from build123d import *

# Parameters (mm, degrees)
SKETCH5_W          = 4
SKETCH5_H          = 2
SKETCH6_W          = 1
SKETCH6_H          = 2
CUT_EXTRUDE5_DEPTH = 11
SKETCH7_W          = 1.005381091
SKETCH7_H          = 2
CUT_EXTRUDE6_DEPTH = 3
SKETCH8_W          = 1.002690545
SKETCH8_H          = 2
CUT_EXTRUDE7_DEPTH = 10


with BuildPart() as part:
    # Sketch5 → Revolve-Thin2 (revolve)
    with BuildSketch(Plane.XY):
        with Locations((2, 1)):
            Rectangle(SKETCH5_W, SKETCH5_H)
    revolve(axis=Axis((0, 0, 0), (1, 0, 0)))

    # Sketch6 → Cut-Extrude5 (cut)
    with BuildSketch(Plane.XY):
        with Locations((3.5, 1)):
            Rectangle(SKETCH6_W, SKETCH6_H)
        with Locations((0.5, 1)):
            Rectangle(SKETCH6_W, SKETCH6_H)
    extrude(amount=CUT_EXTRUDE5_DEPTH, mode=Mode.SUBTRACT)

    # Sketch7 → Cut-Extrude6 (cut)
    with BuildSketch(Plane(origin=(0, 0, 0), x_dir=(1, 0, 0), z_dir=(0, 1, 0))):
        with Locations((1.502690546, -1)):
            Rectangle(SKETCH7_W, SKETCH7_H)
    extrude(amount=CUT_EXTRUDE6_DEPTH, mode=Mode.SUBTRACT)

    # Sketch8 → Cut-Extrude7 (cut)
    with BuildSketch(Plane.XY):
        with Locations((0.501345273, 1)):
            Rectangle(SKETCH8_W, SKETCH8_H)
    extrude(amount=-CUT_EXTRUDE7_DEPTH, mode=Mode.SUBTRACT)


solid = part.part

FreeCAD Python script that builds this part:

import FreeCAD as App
import Part
import Sketcher
from FreeCAD import Vector
Q = App.Units.Quantity


def add_polygon(sketch, points):
    """Adds a closed chain of lines whose ends are joined by coincident constraints."""
    first, n = sketch.GeometryCount, len(points)
    for a, b in zip(points, points[1:] + points[:1]):
        sketch.addGeometry(Part.LineSegment(App.Vector(*a, 0), App.Vector(*b, 0)), False)
    for i in range(n):
        sketch.addConstraint(Sketcher.Constraint("Coincident", first + i, 2, first + (i + 1) % n, 1))

doc = App.newDocument("Part")
body = doc.addObject("PartDesign::Body", "Body")

# Sketch on XY plane
sketch1 = body.newObject("Sketcher::SketchObject", "Sketch")
sketch1.AttachmentSupport = (doc.getObject("XY_Plane"), [""])
sketch1.MapMode = "FlatFace"
add_polygon(sketch1, [(0, 2), (0, 0), (4, 0), (4, 2)])  # lines 0-3
sketch1.addConstraint(Sketcher.Constraint("Vertical", 0))
sketch1.addConstraint(Sketcher.Constraint("Horizontal", 1))
sketch1.addConstraint(Sketcher.Constraint("Vertical", 2))
sketch1.addConstraint(Sketcher.Constraint("Horizontal", 3))
sketch1.addConstraint(Sketcher.Constraint("Coincident", 0, 2, -1, 1))
sketch1.addConstraint(Sketcher.Constraint("DistanceX", 1, 1, 1, 2, Q("4 mm")))
sketch1.addConstraint(Sketcher.Constraint("DistanceY", 0, 2, 0, 1, Q("2 mm")))
revolution = body.newObject("PartDesign::Revolution", "Revolution")
revolution.Profile = sketch1
revolution.ReferenceAxis = (sketch1, ["H_Axis"])
revolution.Angle = 360

# Sketch on XY plane
sketch2 = body.newObject("Sketcher::SketchObject", "Sketch001")
sketch2.AttachmentSupport = (doc.getObject("XY_Plane"), [""])
sketch2.MapMode = "FlatFace"
add_polygon(sketch2, [(3, 2), (3, 0), (4, 0), (4, 2)])  # lines 0-3
add_polygon(sketch2, [(0, 2), (0, 0), (1, 0), (1, 2)])  # lines 4-7
sketch2.addConstraint(Sketcher.Constraint("Vertical", 0))
sketch2.addConstraint(Sketcher.Constraint("Horizontal", 1))
sketch2.addConstraint(Sketcher.Constraint("Vertical", 2))
sketch2.addConstraint(Sketcher.Constraint("Horizontal", 3))
sketch2.addConstraint(Sketcher.Constraint("Vertical", 4))
sketch2.addConstraint(Sketcher.Constraint("Horizontal", 5))
sketch2.addConstraint(Sketcher.Constraint("Vertical", 6))
sketch2.addConstraint(Sketcher.Constraint("Horizontal", 7))
sketch2.addConstraint(Sketcher.Constraint("Coincident", 4, 2, -1, 1))
sketch2.addConstraint(Sketcher.Constraint("PointOnObject", 0, 2, -1))
sketch2.addConstraint(Sketcher.Constraint("Horizontal", 3, 2, 6, 2))
sketch2.addConstraint(Sketcher.Constraint("Equal", 3, 5))
sketch2.addConstraint(Sketcher.Constraint("DistanceX", 1, 1, 1, 2, Q("1 mm")))
sketch2.addConstraint(Sketcher.Constraint("DistanceY", 0, 2, 0, 1, Q("2 mm")))
sketch2.addConstraint(Sketcher.Constraint("DistanceX", -1, 1, 0, 2, Q("3 mm")))
pocket1 = body.newObject("PartDesign::Pocket", "Pocket")
pocket1.Profile = sketch2
pocket1.Length = 11
pocket1.Reversed = True

# Sketch on XZ plane
sketch3 = body.newObject("Sketcher::SketchObject", "Sketch002")
sketch3.AttachmentSupport = (doc.getObject("XZ_Plane"), [""])
sketch3.MapMode = "FlatFace"
add_polygon(sketch3, [(1, 0), (1, 2), (2, 2), (2, 0)])  # lines 0-3
sketch3.addConstraint(Sketcher.Constraint("Vertical", 0))
sketch3.addConstraint(Sketcher.Constraint("Horizontal", 1))
sketch3.addConstraint(Sketcher.Constraint("Vertical", 2))
sketch3.addConstraint(Sketcher.Constraint("Horizontal", 3))
sketch3.addConstraint(Sketcher.Constraint("PointOnObject", 2, 2, -1))
sketch3.addConstraint(Sketcher.Constraint("DistanceY", 0, 1, 0, 2, Q("2 mm")))
sketch3.addConstraint(Sketcher.Constraint("DistanceX", -1, 1, 0, 2, Q("1 mm")))
sketch3.addConstraint(Sketcher.Constraint("DistanceX", 1, 1, 1, 2, Q("1.005381 mm")))
pocket2 = body.newObject("PartDesign::Pocket", "Pocket001")
pocket2.Profile = sketch3
pocket2.Length = 3

# Sketch on XY plane
sketch4 = body.newObject("Sketcher::SketchObject", "Sketch003")
sketch4.AttachmentSupport = (doc.getObject("XY_Plane"), [""])
sketch4.MapMode = "FlatFace"
add_polygon(sketch4, [(0, 2), (0, 0), (1, 0), (1, 2)])  # lines 0-3
sketch4.addConstraint(Sketcher.Constraint("Vertical", 0))
sketch4.addConstraint(Sketcher.Constraint("Horizontal", 1))
sketch4.addConstraint(Sketcher.Constraint("Vertical", 2))
sketch4.addConstraint(Sketcher.Constraint("Horizontal", 3))
sketch4.addConstraint(Sketcher.Constraint("Coincident", 0, 2, -1, 1))
sketch4.addConstraint(Sketcher.Constraint("DistanceY", 0, 2, 0, 1, Q("2 mm")))
sketch4.addConstraint(Sketcher.Constraint("DistanceX", 1, 1, 1, 2, Q("1.002691 mm")))
pocket3 = body.newObject("PartDesign::Pocket", "Pocket002")
pocket3.Profile = sketch4
pocket3.Length = 10

doc.recompute()
